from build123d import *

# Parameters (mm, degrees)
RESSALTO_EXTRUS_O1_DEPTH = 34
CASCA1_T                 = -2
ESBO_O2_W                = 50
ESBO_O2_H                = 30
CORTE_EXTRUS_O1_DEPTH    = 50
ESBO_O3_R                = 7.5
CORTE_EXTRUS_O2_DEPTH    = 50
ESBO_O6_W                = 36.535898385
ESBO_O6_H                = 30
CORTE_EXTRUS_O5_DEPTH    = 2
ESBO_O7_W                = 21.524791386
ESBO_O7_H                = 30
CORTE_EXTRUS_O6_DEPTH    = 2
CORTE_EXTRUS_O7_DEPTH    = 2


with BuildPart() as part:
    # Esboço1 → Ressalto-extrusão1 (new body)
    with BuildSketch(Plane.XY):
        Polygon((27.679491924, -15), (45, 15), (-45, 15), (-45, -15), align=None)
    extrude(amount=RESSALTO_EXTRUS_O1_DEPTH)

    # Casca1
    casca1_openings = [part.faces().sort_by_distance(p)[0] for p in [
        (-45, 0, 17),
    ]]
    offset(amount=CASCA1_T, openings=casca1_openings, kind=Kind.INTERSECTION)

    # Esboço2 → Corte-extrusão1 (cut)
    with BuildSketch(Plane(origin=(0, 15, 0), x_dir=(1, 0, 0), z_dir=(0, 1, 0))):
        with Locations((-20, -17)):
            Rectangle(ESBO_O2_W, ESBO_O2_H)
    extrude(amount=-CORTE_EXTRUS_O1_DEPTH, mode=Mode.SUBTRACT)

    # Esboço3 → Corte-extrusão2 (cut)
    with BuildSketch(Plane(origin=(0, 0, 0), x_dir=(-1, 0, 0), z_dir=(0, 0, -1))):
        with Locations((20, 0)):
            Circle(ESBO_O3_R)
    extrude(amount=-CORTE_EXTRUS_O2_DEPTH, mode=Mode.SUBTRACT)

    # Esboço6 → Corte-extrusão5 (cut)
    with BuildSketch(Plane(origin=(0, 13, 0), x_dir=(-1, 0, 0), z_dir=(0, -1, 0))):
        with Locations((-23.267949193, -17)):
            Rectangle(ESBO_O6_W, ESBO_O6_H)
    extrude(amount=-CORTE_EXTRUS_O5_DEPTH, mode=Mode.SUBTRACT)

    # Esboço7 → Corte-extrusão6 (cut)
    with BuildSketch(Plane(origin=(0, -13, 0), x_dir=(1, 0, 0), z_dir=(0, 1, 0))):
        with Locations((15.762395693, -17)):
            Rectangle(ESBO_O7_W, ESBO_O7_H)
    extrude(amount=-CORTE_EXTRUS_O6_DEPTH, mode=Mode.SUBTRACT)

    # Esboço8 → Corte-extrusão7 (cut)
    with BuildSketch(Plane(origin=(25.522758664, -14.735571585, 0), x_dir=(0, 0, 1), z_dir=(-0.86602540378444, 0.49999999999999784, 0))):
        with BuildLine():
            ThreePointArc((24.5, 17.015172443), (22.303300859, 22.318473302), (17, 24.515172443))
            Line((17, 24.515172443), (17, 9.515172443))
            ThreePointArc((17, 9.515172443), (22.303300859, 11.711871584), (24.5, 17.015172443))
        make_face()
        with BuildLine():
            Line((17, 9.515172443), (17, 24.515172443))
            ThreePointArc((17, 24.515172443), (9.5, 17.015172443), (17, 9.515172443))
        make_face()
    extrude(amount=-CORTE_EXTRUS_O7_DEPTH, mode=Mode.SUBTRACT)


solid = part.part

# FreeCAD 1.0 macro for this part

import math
import FreeCAD as App
import Part
import Sketcher

V = App.Vector
Q = App.Units.Quantity


def faces_at(feature, points):
    """Names of the faces that lie closest to the given points."""
    faces = feature.Shape.Faces
    near = lambda p: min(range(len(faces)), key=lambda i: faces[i].distToShape(Part.Vertex(*p))[0])
    return sorted({f"Face{near(p) + 1}" for p in points})


def add_polygon(sketch, points):
    """Adds a closed chain of lines whose ends are joined by coincident constraints."""
    first, n = sketch.GeometryCount, len(points)
    for a, b in zip(points, points[1:] + points[:1]):
        sketch.addGeometry(Part.LineSegment(App.Vector(*a, 0), App.Vector(*b, 0)), False)
    for i in range(n):
        sketch.addConstraint(Sketcher.Constraint("Coincident", first + i, 2, first + (i + 1) % n, 1))

doc = App.newDocument("Part")
body = doc.addObject("PartDesign::Body", "Body")

# Sketch on XY plane
sketch1 = doc.addObject("Sketcher::SketchObject", "Sketch")
body.addObject(sketch1)
sketch1.AttachmentSupport = (doc.XY_Plane, [""])
sketch1.MapMode = "FlatFace"
add_polygon(sketch1, [(27.679492, -15), (45, 15), (-45, 15), (-45, -15)])  # lines 0-3
sketch1.addConstraint(Sketcher.Constraint("Horizontal", 1))
sketch1.addConstraint(Sketcher.Constraint("Vertical", 2))
sketch1.addConstraint(Sketcher.Constraint("Horizontal", 3))
sketch1.addConstraint(Sketcher.Constraint("Symmetric", 0, 2, 2, 2, -1, 1))
sketch1.addConstraint(Sketcher.Constraint("DistanceX", 1, 2, 1, 1, Q("90 mm")))
sketch1.addConstraint(Sketcher.Constraint("DistanceY", 2, 2, 2, 1, Q("30 mm")))
sketch1.addConstraint(Sketcher.Constraint("Angle", 0, Q("60 deg")))
pad1 = doc.addObject("PartDesign::Pad", "Pad")
body.addObject(pad1)
pad1.Profile = sketch1
pad1.Length = 34
doc.recompute()

thickness = doc.addObject("PartDesign::Thickness", "Thickness")
body.addObject(thickness)
thickness.Base = (pad1, faces_at(pad1, [(-45, 0, 17)]))
thickness.Value = 2
thickness.Reversed = True
thickness.Join = "Intersection"

# Sketch on XZ plane
sketch2 = doc.addObject("Sketcher::SketchObject", "Sketch001")
body.addObject(sketch2)
sketch2.AttachmentSupport = (doc.XZ_Plane, [""])
sketch2.MapMode = "FlatFace"
sketch2.AttachmentOffset = App.Placement(V(0, 0, -15), App.Rotation())
add_polygon(sketch2, [(-45, 2), (-45, 32), (5, 32), (5, 2)])  # lines 0-3
sketch2.addConstraint(Sketcher.Constraint("Vertical", 0))
sketch2.addConstraint(Sketcher.Constraint("Horizontal", 1))
sketch2.addConstraint(Sketcher.Constraint("Vertical", 2))
sketch2.addConstraint(Sketcher.Constraint("Horizontal", 3))
sketch2.addConstraint(Sketcher.Constraint("DistanceX", 1, 1, 1, 2, Q("50 mm")))
sketch2.addConstraint(Sketcher.Constraint("DistanceY", 0, 1, 0, 2, Q("30 mm")))
sketch2.addConstraint(Sketcher.Constraint("DistanceX", 0, 2, -1, 1, Q("45 mm")))
sketch2.addConstraint(Sketcher.Constraint("DistanceY", -1, 1, 0, 2, Q("32 mm")))
pocket1 = doc.addObject("PartDesign::Pocket", "Pocket")
body.addObject(pocket1)
pocket1.Profile = sketch2
pocket1.Length = 50
pocket1.Reversed = True

# Sketch on XY plane
sketch3 = doc.addObject("Sketcher::SketchObject", "Sketch002")
body.addObject(sketch3)
sketch3.AttachmentSupport = (doc.XY_Plane, [""])
sketch3.MapMode = "FlatFace"
sketch3.addGeometry(Part.Circle(V(-20, 0, 0), V(0, 0, 1), 7.5), False)
sketch3.addConstraint(Sketcher.Constraint("PointOnObject", 0, 3, -1))
sketch3.addConstraint(Sketcher.Constraint("Diameter", 0, Q("15 mm")))
sketch3.addConstraint(Sketcher.Constraint("DistanceX", 0, 3, -1, 1, Q("20 mm")))
pocket2 = doc.addObject("PartDesign::Pocket", "Pocket001")
body.addObject(pocket2)
pocket2.Profile = sketch3
pocket2.Length = 50
pocket2.Reversed = True

# Sketch on XZ plane
sketch4 = doc.addObject("Sketcher::SketchObject", "Sketch003")
body.addObject(sketch4)
sketch4.AttachmentSupport = (doc.XZ_Plane, [""])
sketch4.MapMode = "FlatFace"
sketch4.AttachmentOffset = App.Placement(V(0, 0, -13), App.Rotation())
add_polygon(sketch4, [(41.535898, 2), (41.535898, 32), (5, 32), (5, 2)])  # lines 0-3
sketch4.addConstraint(Sketcher.Constraint("Vertical", 0))
sketch4.addConstraint(Sketcher.Constraint("Horizontal", 1))
sketch4.addConstraint(Sketcher.Constraint("Vertical", 2))
sketch4.addConstraint(Sketcher.Constraint("Horizontal", 3))
sketch4.addConstraint(Sketcher.Constraint("DistanceY", 0, 1, 0, 2, Q("30 mm")))
sketch4.addConstraint(Sketcher.Constraint("DistanceY", -1, 1, 0, 2, Q("32 mm")))
sketch4.addConstraint(Sketcher.Constraint("DistanceX", -1, 1, 1, 2, Q("5 mm")))
sketch4.addConstraint(Sketcher.Constraint("DistanceX", 1, 2, 1, 1, Q("36.535898 mm")))
pocket3 = doc.addObject("PartDesign::Pocket", "Pocket002")
body.addObject(pocket3)
pocket3.Profile = sketch4
pocket3.Length = 2

# Sketch on XZ plane
sketch5 = doc.addObject("Sketcher::SketchObject", "Sketch004")
body.addObject(sketch5)
sketch5.AttachmentSupport = (doc.XZ_Plane, [""])
sketch5.MapMode = "FlatFace"
sketch5.AttachmentOffset = App.Placement(V(0, 0, 13), App.Rotation())
add_polygon(sketch5, [(5, 2), (5, 32), (26.524791, 32), (26.524791, 2)])  # lines 0-3
sketch5.addConstraint(Sketcher.Constraint("Vertical", 0))
sketch5.addConstraint(Sketcher.Constraint("Horizontal", 1))
sketch5.addConstraint(Sketcher.Constraint("Vertical", 2))
sketch5.addConstraint(Sketcher.Constraint("Horizontal", 3))
sketch5.addConstraint(Sketcher.Constraint("DistanceY", 0, 1, 0, 2, Q("30 mm")))
sketch5.addConstraint(Sketcher.Constraint("DistanceX", -1, 1, 0, 2, Q("5 mm")))
sketch5.addConstraint(Sketcher.Constraint("DistanceY", -1, 1, 0, 2, Q("32 mm")))
sketch5.addConstraint(Sketcher.Constraint("DistanceX", 1, 1, 1, 2, Q("21.524791 mm")))
pocket4 = doc.addObject("PartDesign::Pocket", "Pocket003")
body.addObject(pocket4)
pocket4.Profile = sketch5
pocket4.Length = 2
pocket4.Reversed = True

# Sketch on an angled plane
sketch6 = doc.addObject("Sketcher::SketchObject", "Sketch005")
body.addObject(sketch6)
sketch6.Placement = App.Placement(V(25.522759, -14.735572, 0), App.Rotation(V(0, 0, 1), V(0.5, 0.866025404, 0), V(-0.866025404, 0.5, 0), "ZXY"))
sketch6.addGeometry(Part.ArcOfCircle(Part.Circle(V(17, 17.015172, 0), V(0, 0, 1), 7.5), math.radians(0), math.radians(90)), False)
sketch6.addGeometry(Part.ArcOfCircle(Part.Circle(V(17, 17.015172, 0), V(0, 0, 1), 7.5), math.radians(90), math.radians(270)), False)
sketch6.addGeometry(Part.ArcOfCircle(Part.Circle(V(17, 17.015172, 0), V(0, 0, 1), 7.5), math.radians(-90), math.radians(0)), False)
sketch6.addConstraint(Sketcher.Constraint("Tangent", 0, 2, 1, 1))
sketch6.addConstraint(Sketcher.Constraint("Tangent", 1, 2, 2, 1))
sketch6.addConstraint(Sketcher.Constraint("Tangent", 2, 2, 0, 1))
sketch6.addConstraint(Sketcher.Constraint("Horizontal", 1, 3, 2, 2))
sketch6.addConstraint(Sketcher.Constraint("Vertical", 2, 3, 0, 2))
sketch6.addConstraint(Sketcher.Constraint("Vertical", 0, 2, 1, 2))
sketch6.addConstraint(Sketcher.Constraint("Radius", 0, Q("7.5 mm")))
sketch6.addConstraint(Sketcher.Constraint("DistanceX", -1, 1, 0, 3, Q("17 mm")))
sketch6.addConstraint(Sketcher.Constraint("DistanceY", -1, 1, 0, 3, Q("17.015172 mm")))
pocket5 = doc.addObject("PartDesign::Pocket", "Pocket004")
body.addObject(pocket5)
pocket5.Profile = sketch6
pocket5.Length = 2

doc.recompute()
